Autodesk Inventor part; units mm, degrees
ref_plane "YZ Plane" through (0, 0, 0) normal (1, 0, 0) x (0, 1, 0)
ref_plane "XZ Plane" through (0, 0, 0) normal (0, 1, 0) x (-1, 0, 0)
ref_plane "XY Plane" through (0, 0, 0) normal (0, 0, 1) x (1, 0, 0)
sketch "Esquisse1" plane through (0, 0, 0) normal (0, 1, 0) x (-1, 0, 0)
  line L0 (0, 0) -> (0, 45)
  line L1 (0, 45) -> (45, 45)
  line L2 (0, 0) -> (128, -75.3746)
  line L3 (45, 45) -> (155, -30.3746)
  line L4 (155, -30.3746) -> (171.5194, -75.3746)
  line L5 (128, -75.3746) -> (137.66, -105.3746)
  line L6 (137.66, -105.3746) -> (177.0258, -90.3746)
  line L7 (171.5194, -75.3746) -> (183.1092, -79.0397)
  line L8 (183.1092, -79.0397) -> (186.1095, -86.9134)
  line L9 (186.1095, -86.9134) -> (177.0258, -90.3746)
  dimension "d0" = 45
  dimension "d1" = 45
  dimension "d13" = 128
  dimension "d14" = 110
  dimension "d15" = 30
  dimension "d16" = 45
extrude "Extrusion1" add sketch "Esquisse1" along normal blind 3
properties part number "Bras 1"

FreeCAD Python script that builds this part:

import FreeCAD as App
import Part
import Sketcher
Q = App.Units.Quantity


def add_polygon(sketch, points):
    """Adds a closed chain of lines whose ends are joined by coincident constraints."""
    first, n = sketch.GeometryCount, len(points)
    for a, b in zip(points, points[1:] + points[:1]):
        sketch.addGeometry(Part.LineSegment(App.Vector(*a, 0), App.Vector(*b, 0)), False)
    for i in range(n):
        sketch.addConstraint(Sketcher.Constraint("Coincident", first + i, 2, first + (i + 1) % n, 1))

doc = App.newDocument("Part")
body = doc.addObject("PartDesign::Body", "Body")

sketch1 = body.newObject("Sketcher::SketchObject", "Sketch")
sketch1.AttachmentSupport = (doc.getObject("XZ_Plane"), [""])
sketch1.MapMode = "FlatFace"
add_polygon(sketch1, [(0, 45), (0, 0), (-128, -75.3746), (-137.66, -105.3746), (-177.0258, -90.3746), (-186.1095, -86.9134), (-183.1092, -79.0397), (-171.5194, -75.3746), (-155, -30.3746), (-45, 45)])
sketch1.addConstraint([
    Sketcher.Constraint("Vertical", 0),
    Sketcher.Constraint("Horizontal", 9),
    Sketcher.Constraint("Coincident", 0, 2, -1, 1),
    Sketcher.Constraint("Parallel", 3, 4),
    Sketcher.Constraint("Perpendicular", 4, 5),
    Sketcher.Constraint("Horizontal", 1, 2, 6, 2),
    Sketcher.Constraint("Equal", 9, 0),
    Sketcher.Constraint("DistanceX", 9, 1, 9, 2, Q("45 mm")),
    Sketcher.Constraint("DistanceX", 1, 2, -1, 1, Q("128 mm")),
    Sketcher.Constraint("DistanceY", 2, 2, 1, 2, Q("30 mm")),
    Sketcher.Constraint("DistanceY", 6, 2, 7, 2, Q("45 mm")),
    Sketcher.Constraint("DistanceX", 7, 2, 8, 2, Q("110 mm")),
    Sketcher.Constraint("DistanceY", 2, 2, 3, 2, Q("15 mm")),
    Sketcher.Constraint("Angle", 3, Q("159.141 deg")),
    Sketcher.Constraint("Angle", 8, Q("34.4199 deg")),
    Sketcher.Constraint("DistanceX", 2, 2, -1, 1, Q("137.66 mm")),
    Sketcher.Constraint("DistanceX", 4, 2, 6, 2, Q("14.59 mm")),
    Sketcher.Constraint("Distance", 5, Q("8.426 mm")),
    Sketcher.Constraint("DistanceY", 3, 2, 5, 2, Q("11.335 mm")),
])
pad1 = body.newObject("PartDesign::Pad", "Pad")
pad1.Profile = sketch1
pad1.Length = 3
pad1.Reversed = True

doc.recompute()
